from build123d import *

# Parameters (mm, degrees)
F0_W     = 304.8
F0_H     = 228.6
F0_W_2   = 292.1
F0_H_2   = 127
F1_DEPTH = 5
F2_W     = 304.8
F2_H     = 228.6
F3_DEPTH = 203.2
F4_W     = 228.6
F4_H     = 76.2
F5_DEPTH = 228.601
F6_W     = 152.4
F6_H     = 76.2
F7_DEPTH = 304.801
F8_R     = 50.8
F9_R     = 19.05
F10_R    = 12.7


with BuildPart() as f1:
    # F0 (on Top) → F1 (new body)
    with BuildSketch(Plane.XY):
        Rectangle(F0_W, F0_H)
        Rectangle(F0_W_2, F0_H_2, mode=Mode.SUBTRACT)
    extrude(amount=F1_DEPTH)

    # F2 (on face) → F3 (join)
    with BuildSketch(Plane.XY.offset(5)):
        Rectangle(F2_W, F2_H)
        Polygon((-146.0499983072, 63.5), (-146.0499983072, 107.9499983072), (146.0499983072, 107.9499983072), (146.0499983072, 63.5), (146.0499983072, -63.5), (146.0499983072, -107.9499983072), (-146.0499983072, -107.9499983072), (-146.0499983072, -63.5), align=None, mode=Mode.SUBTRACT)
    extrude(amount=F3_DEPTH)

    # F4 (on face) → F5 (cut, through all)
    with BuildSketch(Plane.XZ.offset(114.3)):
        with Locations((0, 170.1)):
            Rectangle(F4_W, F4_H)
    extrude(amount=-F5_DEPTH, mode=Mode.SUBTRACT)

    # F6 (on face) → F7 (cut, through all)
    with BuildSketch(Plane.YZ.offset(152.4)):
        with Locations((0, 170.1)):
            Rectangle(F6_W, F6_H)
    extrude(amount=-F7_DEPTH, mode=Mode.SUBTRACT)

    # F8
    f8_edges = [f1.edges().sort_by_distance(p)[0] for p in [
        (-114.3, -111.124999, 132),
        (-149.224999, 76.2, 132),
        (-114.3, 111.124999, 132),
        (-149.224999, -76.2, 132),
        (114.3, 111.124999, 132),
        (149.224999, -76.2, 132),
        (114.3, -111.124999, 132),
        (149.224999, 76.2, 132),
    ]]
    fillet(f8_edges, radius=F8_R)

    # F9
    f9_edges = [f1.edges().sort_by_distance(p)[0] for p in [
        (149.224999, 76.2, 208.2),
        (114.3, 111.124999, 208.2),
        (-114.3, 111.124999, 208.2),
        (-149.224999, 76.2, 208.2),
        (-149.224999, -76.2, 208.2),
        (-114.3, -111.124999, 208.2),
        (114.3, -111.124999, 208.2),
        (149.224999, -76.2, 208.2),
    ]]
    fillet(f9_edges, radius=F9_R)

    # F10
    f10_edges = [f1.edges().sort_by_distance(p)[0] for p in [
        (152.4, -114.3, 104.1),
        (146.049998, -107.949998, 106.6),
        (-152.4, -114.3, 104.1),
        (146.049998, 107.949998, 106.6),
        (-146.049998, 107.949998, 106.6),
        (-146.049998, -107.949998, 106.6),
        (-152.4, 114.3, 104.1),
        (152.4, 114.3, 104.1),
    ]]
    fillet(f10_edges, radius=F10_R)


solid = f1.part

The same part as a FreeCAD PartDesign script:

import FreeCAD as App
import Part
import Sketcher

V = App.Vector
Q = App.Units.Quantity


def edges_at(feature, points):
    """Names of the edges that pass closest to the given points."""
    edges = feature.Shape.Edges
    near = lambda p: min(range(len(edges)), key=lambda i: edges[i].distToShape(Part.Vertex(*p))[0])
    return sorted({f"Edge{near(p) + 1}" for p in points})


def add_polygon(sketch, points):
    """Adds a closed chain of lines whose ends are joined by coincident constraints."""
    first, n = sketch.GeometryCount, len(points)
    for a, b in zip(points, points[1:] + points[:1]):
        sketch.addGeometry(Part.LineSegment(App.Vector(*a, 0), App.Vector(*b, 0)), False)
    for i in range(n):
        sketch.addConstraint(Sketcher.Constraint("Coincident", first + i, 2, first + (i + 1) % n, 1))

doc = App.newDocument("Part")
params = doc.addObject("Spreadsheet::Sheet", "Params")
for row, (alias, value) in enumerate([
    ("sketch1_width", "12 in"),
    ("sketch1_height", "9 in"),
    ("sketch1_height2", "5 in"),
    ("sketch1_width2", "11.5 in"),
    ("pad1_length", "5 mm"),
    ("sketch2_width", "12 in"),
    ("sketch2_height", "9 in"),
    ("sketch2_width2", "11.4999999 in"),
    ("sketch2_height2", "8.4999999 in"),
    ("pad2_length", "8 in"),
    ("sketch3_width", "9 in"),
    ("sketch3_height", "3 in"),
    ("sketch4_width", "6 in"),
    ("sketch4_height", "3 in"),
    ("fillet_radius", "2 in"),
    ("fillet2_radius", "0.75 in"),
    ("fillet3_radius", "0.5 in"),
], start=1):
    params.set(f"A{row}", alias)
    params.set(f"B{row}", "=" + value)
    params.setAlias(f"B{row}", alias)

body = doc.addObject("PartDesign::Body", "Body")

sketch1 = doc.addObject("Sketcher::SketchObject", "Sketch")
body.addObject(sketch1)
sketch1.AttachmentSupport = (doc.XY_Plane, [""])
sketch1.MapMode = "FlatFace"
add_polygon(sketch1, [(-152, 114), (-152, -114), (152, -114), (152, 114)])
add_polygon(sketch1, [(146, -64), (-146, -64), (-146, 64), (146, 64)])
sketch1.addConstraint(Sketcher.Constraint("Vertical", 0))
sketch1.addConstraint(Sketcher.Constraint("Horizontal", 1))
sketch1.addConstraint(Sketcher.Constraint("Vertical", 2))
sketch1.addConstraint(Sketcher.Constraint("Horizontal", 3))
sketch1.addConstraint(Sketcher.Constraint("Horizontal", 4))
sketch1.addConstraint(Sketcher.Constraint("Vertical", 5))
sketch1.addConstraint(Sketcher.Constraint("Horizontal", 6))
sketch1.addConstraint(Sketcher.Constraint("Vertical", 7))
sketch1.addConstraint(Sketcher.Constraint("Symmetric", 0, 2, 2, 2, -1, 1))
sketch1.addConstraint(Sketcher.Constraint("Symmetric", 4, 2, 6, 2, -1, 1))
sketch1.addConstraint(Sketcher.Constraint("DistanceX", 1, 1, 1, 2, Q("12 in")))
sketch1.addConstraint(Sketcher.Constraint("DistanceY", 0, 2, 0, 1, Q("9 in")))
sketch1.addConstraint(Sketcher.Constraint("DistanceY", 5, 1, 5, 2, Q("5 in")))
sketch1.addConstraint(Sketcher.Constraint("DistanceX", 4, 2, 4, 1, Q("11.5 in")))
sketch1.setExpression("Constraints[18]", "Params.sketch1_width")
sketch1.setExpression("Constraints[19]", "Params.sketch1_height")
sketch1.setExpression("Constraints[20]", "Params.sketch1_height2")
sketch1.setExpression("Constraints[21]", "Params.sketch1_width2")
pad1 = doc.addObject("PartDesign::Pad", "Pad")
body.addObject(pad1)
pad1.Profile = sketch1
pad1.setExpression("Length", "Params.pad1_length")

sketch2 = doc.addObject("Sketcher::SketchObject", "Sketch001")
body.addObject(sketch2)
sketch2.AttachmentSupport = (doc.XY_Plane, [""])
sketch2.MapMode = "FlatFace"
sketch2.AttachmentOffset = App.Placement(V(0, 0, 5), App.Rotation())
add_polygon(sketch2, [(-152, 114), (-152, -114), (152, -114), (152, 114)])
add_polygon(sketch2, [(-146, -108), (-146, 108), (146, 108), (146, -108)])
sketch2.addConstraint(Sketcher.Constraint("Vertical", 0))
sketch2.addConstraint(Sketcher.Constraint("Horizontal", 1))
sketch2.addConstraint(Sketcher.Constraint("Vertical", 2))
sketch2.addConstraint(Sketcher.Constraint("Horizontal", 3))
sketch2.addConstraint(Sketcher.Constraint("Vertical", 4))
sketch2.addConstraint(Sketcher.Constraint("Horizontal", 5))
sketch2.addConstraint(Sketcher.Constraint("Vertical", 6))
sketch2.addConstraint(Sketcher.Constraint("Horizontal", 7))
sketch2.addConstraint(Sketcher.Constraint("Symmetric", 0, 2, 2, 2, -1, 1))
sketch2.addConstraint(Sketcher.Constraint("Symmetric", 4, 2, 6, 2, -1, 1))
sketch2.addConstraint(Sketcher.Constraint("DistanceX", 1, 1, 1, 2, Q("12 in")))
sketch2.addConstraint(Sketcher.Constraint("DistanceY", 0, 2, 0, 1, Q("9 in")))
sketch2.addConstraint(Sketcher.Constraint("DistanceX", 5, 1, 5, 2, Q("11.4999999 in")))
sketch2.addConstraint(Sketcher.Constraint("DistanceY", 4, 1, 4, 2, Q("8.4999999 in")))
sketch2.setExpression("Constraints[18]", "Params.sketch2_width")
sketch2.setExpression("Constraints[19]", "Params.sketch2_height")
sketch2.setExpression("Constraints[20]", "Params.sketch2_width2")
sketch2.setExpression("Constraints[21]", "Params.sketch2_height2")
pad2 = doc.addObject("PartDesign::Pad", "Pad001")
body.addObject(pad2)
pad2.Profile = sketch2
pad2.setExpression("Length", "Params.pad2_length")

sketch3 = doc.addObject("Sketcher::SketchObject", "Sketch002")
body.addObject(sketch3)
sketch3.AttachmentSupport = (doc.XZ_Plane, [""])
sketch3.MapMode = "FlatFace"
sketch3.AttachmentOffset = App.Placement(V(0, 0, 4.5 * 25.4), App.Rotation())
add_polygon(sketch3, [(-114, 208), (-114, 132), (114, 132), (114, 208)])
sketch3.addConstraint(Sketcher.Constraint("Vertical", 0))
sketch3.addConstraint(Sketcher.Constraint("Horizontal", 1))
sketch3.addConstraint(Sketcher.Constraint("Vertical", 2))
sketch3.addConstraint(Sketcher.Constraint("Horizontal", 3))
sketch3.addConstraint(Sketcher.Constraint("DistanceX", 1, 1, 1, 2, Q("9 in")))
sketch3.addConstraint(Sketcher.Constraint("DistanceY", 0, 2, 0, 1, Q("3 in")))
sketch3.addConstraint(Sketcher.Constraint("DistanceX", 0, 2, -1, 1, Q("4.5 in")))
sketch3.addConstraint(Sketcher.Constraint("DistanceY", -1, 1, 0, 2, 132.0))
sketch3.setExpression("Constraints[8]", "Params.sketch3_width")
sketch3.setExpression("Constraints[9]", "Params.sketch3_height")
pocket1 = doc.addObject("PartDesign::Pocket", "Pocket")
body.addObject(pocket1)
pocket1.Profile = sketch3
pocket1.Type = "ThroughAll"

sketch4 = doc.addObject("Sketcher::SketchObject", "Sketch003")
body.addObject(sketch4)
sketch4.AttachmentSupport = (doc.YZ_Plane, [""])
sketch4.MapMode = "FlatFace"
sketch4.AttachmentOffset = App.Placement(V(0, 0, 6 * 25.4), App.Rotation())
add_polygon(sketch4, [(-76, 208), (-76, 132), (76, 132), (76, 208)])
sketch4.addConstraint(Sketcher.Constraint("Vertical", 0))
sketch4.addConstraint(Sketcher.Constraint("Horizontal", 1))
sketch4.addConstraint(Sketcher.Constraint("Vertical", 2))
sketch4.addConstraint(Sketcher.Constraint("Horizontal", 3))
sketch4.addConstraint(Sketcher.Constraint("DistanceX", 1, 1, 1, 2, Q("6 in")))
sketch4.addConstraint(Sketcher.Constraint("DistanceY", 0, 2, 0, 1, Q("3 in")))
sketch4.addConstraint(Sketcher.Constraint("DistanceX", 0, 2, -1, 1, Q("3 in")))
sketch4.addConstraint(Sketcher.Constraint("DistanceY", -1, 1, 0, 2, 132.0))
sketch4.setExpression("Constraints[8]", "Params.sketch4_width")
sketch4.setExpression("Constraints[9]", "Params.sketch4_height")
pocket2 = doc.addObject("PartDesign::Pocket", "Pocket001")
body.addObject(pocket2)
pocket2.Profile = sketch4
pocket2.Type = "ThroughAll"
doc.recompute()

fillet = doc.addObject("PartDesign::Fillet", "Fillet")
body.addObject(fillet)
fillet.Base = (pocket2, edges_at(pocket2, [
    (-114.3, -111.125, 132),
    (-149.225, 76.2, 132),
    (-114.3, 111.125, 132),
    (-149.225, -76.2, 132),
    (114.3, 111.125, 132),
    (149.225, -76.2, 132),
    (114.3, -111.125, 132),
    (149.225, 76.2, 132),
]))
fillet.setExpression("Radius", "Params.fillet_radius")
doc.recompute()

fillet2 = doc.addObject("PartDesign::Fillet", "Fillet001")
body.addObject(fillet2)
fillet2.Base = (fillet, edges_at(fillet, [
    (149.225, 76.2, 208.2),
    (114.3, 111.125, 208.2),
    (-114.3, 111.125, 208.2),
    (-149.225, 76.2, 208.2),
    (-149.225, -76.2, 208.2),
    (-114.3, -111.125, 208.2),
    (114.3, -111.125, 208.2),
    (149.225, -76.2, 208.2),
]))
fillet2.setExpression("Radius", "Params.fillet2_radius")
doc.recompute()

fillet3 = doc.addObject("PartDesign::Fillet", "Fillet002")
body.addObject(fillet3)
fillet3.Base = (fillet2, edges_at(fillet2, [
    (152.4, -114.3, 104.1),
    (146.05, -107.95, 106.6),
    (-152.4, -114.3, 104.1),
    (146.05, 107.95, 106.6),
    (-146.05, 107.95, 106.6),
    (-146.05, -107.95, 106.6),
    (-152.4, 114.3, 104.1),
    (152.4, 114.3, 104.1),
]))
fillet3.setExpression("Radius", "Params.fillet3_radius")

doc.recompute()
